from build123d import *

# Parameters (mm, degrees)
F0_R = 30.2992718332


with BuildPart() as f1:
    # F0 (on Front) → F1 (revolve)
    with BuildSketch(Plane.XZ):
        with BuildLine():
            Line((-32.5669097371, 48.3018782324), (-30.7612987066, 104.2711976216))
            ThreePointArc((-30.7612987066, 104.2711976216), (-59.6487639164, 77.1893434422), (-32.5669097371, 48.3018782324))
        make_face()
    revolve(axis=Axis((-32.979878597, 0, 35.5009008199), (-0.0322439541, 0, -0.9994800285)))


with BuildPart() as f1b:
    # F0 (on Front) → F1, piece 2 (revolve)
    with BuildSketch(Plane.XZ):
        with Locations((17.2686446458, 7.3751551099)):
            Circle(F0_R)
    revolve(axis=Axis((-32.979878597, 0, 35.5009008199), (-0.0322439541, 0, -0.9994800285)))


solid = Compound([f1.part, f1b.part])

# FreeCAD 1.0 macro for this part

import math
import FreeCAD as App
import Part
import Sketcher
from FreeCAD import Vector
Q = App.Units.Quantity

doc = App.newDocument("Part")
params = doc.addObject("Spreadsheet::Sheet", "Params")
for row, (alias, value) in enumerate([
    ("revolution_angle", "360 deg"),
    ("sketch2_length", "10 mm"),
    ("revolution2_angle", "360 deg"),
], start=1):
    params.set(f"A{row}", alias)
    params.set(f"B{row}", "=" + value)
    params.setAlias(f"B{row}", alias)

body = doc.addObject("PartDesign::Body", "Body")

# Sketch on XZ plane
sketch1 = doc.addObject("Sketcher::SketchObject", "Sketch")
body.addObject(sketch1)
sketch1.AttachmentSupport = (doc.XZ_Plane, [""])
sketch1.MapMode = "FlatFace"
sketch1.addGeometry(Part.LineSegment(Vector(-32.56691, 48.301878, 0), Vector(-30.761299, 104.271198, 0)), False)
sketch1.addGeometry(Part.ArcOfCircle(Part.Circle(Vector(-31.664104, 76.286538, 0), Vector(0, 0, 1), 27.999218), math.radians(88.152237), math.radians(268.152237)), False)
sketch1.addGeometry(Part.LineSegment(Vector(-30.761299, 104.271198, 0), Vector(-32.56691, 48.301878, 0)), True)  # axis
sketch1.addConstraint(Sketcher.Constraint("Coincident", 0, 1, 1, 2))
sketch1.addConstraint(Sketcher.Constraint("Coincident", 1, 1, 0, 2))
sketch1.addConstraint(Sketcher.Constraint("Coincident", 2, 1, 1, 1))
sketch1.addConstraint(Sketcher.Constraint("Coincident", 2, 2, 0, 1))
sketch1.addConstraint(Sketcher.Constraint("Radius", 1, Q("27.999218 mm")))
sketch1.addConstraint(Sketcher.Constraint("DistanceX", 1, 1, -1, 1, Q("30.761299 mm")))
sketch1.addConstraint(Sketcher.Constraint("DistanceX", 0, 1, -1, 1, Q("32.56691 mm")))
sketch1.addConstraint(Sketcher.Constraint("DistanceY", -1, 1, 0, 1, Q("48.301878 mm")))
sketch1.addConstraint(Sketcher.Constraint("DistanceY", 0, 1, 1, 3, Q("27.98466 mm")))
revolution = doc.addObject("PartDesign::Revolution", "Revolution")
body.addObject(revolution)
revolution.Profile = sketch1
revolution.ReferenceAxis = (sketch1, ["Axis0"])
revolution.setExpression("Angle", "Params.revolution_angle")
body2 = doc.addObject("PartDesign::Body", "Body001")

# Sketch on XZ plane
sketch2 = doc.addObject("Sketcher::SketchObject", "Sketch001")
body2.addObject(sketch2)
sketch2.AttachmentSupport = (doc.getObject("XZ_Plane001"), [""])
sketch2.MapMode = "FlatFace"
sketch2.addGeometry(Part.Circle(Vector(17.268645, 7.375155, 0), Vector(0, 0, 1), 30.299272), False)
sketch2.addGeometry(Part.LineSegment(Vector(-33.83405, 9.023765, 0), Vector(-34.15649, -0.971035, 0)), True)  # axis
sketch2.addConstraint(Sketcher.Constraint("Distance", 1, Q("10 mm")))
sketch2.addConstraint(Sketcher.Constraint("Diameter", 0, Q("60.598544 mm")))
sketch2.addConstraint(Sketcher.Constraint("DistanceY", 1, 2, 1, 1, Q("9.9948 mm")))
sketch2.addConstraint(Sketcher.Constraint("DistanceX", 1, 1, -1, 1, Q("33.83405 mm")))
sketch2.addConstraint(Sketcher.Constraint("DistanceY", 0, 3, 1, 1, Q("1.64861 mm")))
sketch2.addConstraint(Sketcher.Constraint("DistanceX", -1, 1, 0, 3, Q("17.268645 mm")))
sketch2.addConstraint(Sketcher.Constraint("DistanceY", -1, 1, 0, 3, Q("7.375155 mm")))
sketch2.setExpression("Constraints[0]", "Params.sketch2_length")
revolution2 = doc.addObject("PartDesign::Revolution", "Revolution001")
body2.addObject(revolution2)
revolution2.Profile = sketch2
revolution2.ReferenceAxis = (sketch2, ["Axis0"])
revolution2.setExpression("Angle", "Params.revolution2_angle")

doc.recompute()
